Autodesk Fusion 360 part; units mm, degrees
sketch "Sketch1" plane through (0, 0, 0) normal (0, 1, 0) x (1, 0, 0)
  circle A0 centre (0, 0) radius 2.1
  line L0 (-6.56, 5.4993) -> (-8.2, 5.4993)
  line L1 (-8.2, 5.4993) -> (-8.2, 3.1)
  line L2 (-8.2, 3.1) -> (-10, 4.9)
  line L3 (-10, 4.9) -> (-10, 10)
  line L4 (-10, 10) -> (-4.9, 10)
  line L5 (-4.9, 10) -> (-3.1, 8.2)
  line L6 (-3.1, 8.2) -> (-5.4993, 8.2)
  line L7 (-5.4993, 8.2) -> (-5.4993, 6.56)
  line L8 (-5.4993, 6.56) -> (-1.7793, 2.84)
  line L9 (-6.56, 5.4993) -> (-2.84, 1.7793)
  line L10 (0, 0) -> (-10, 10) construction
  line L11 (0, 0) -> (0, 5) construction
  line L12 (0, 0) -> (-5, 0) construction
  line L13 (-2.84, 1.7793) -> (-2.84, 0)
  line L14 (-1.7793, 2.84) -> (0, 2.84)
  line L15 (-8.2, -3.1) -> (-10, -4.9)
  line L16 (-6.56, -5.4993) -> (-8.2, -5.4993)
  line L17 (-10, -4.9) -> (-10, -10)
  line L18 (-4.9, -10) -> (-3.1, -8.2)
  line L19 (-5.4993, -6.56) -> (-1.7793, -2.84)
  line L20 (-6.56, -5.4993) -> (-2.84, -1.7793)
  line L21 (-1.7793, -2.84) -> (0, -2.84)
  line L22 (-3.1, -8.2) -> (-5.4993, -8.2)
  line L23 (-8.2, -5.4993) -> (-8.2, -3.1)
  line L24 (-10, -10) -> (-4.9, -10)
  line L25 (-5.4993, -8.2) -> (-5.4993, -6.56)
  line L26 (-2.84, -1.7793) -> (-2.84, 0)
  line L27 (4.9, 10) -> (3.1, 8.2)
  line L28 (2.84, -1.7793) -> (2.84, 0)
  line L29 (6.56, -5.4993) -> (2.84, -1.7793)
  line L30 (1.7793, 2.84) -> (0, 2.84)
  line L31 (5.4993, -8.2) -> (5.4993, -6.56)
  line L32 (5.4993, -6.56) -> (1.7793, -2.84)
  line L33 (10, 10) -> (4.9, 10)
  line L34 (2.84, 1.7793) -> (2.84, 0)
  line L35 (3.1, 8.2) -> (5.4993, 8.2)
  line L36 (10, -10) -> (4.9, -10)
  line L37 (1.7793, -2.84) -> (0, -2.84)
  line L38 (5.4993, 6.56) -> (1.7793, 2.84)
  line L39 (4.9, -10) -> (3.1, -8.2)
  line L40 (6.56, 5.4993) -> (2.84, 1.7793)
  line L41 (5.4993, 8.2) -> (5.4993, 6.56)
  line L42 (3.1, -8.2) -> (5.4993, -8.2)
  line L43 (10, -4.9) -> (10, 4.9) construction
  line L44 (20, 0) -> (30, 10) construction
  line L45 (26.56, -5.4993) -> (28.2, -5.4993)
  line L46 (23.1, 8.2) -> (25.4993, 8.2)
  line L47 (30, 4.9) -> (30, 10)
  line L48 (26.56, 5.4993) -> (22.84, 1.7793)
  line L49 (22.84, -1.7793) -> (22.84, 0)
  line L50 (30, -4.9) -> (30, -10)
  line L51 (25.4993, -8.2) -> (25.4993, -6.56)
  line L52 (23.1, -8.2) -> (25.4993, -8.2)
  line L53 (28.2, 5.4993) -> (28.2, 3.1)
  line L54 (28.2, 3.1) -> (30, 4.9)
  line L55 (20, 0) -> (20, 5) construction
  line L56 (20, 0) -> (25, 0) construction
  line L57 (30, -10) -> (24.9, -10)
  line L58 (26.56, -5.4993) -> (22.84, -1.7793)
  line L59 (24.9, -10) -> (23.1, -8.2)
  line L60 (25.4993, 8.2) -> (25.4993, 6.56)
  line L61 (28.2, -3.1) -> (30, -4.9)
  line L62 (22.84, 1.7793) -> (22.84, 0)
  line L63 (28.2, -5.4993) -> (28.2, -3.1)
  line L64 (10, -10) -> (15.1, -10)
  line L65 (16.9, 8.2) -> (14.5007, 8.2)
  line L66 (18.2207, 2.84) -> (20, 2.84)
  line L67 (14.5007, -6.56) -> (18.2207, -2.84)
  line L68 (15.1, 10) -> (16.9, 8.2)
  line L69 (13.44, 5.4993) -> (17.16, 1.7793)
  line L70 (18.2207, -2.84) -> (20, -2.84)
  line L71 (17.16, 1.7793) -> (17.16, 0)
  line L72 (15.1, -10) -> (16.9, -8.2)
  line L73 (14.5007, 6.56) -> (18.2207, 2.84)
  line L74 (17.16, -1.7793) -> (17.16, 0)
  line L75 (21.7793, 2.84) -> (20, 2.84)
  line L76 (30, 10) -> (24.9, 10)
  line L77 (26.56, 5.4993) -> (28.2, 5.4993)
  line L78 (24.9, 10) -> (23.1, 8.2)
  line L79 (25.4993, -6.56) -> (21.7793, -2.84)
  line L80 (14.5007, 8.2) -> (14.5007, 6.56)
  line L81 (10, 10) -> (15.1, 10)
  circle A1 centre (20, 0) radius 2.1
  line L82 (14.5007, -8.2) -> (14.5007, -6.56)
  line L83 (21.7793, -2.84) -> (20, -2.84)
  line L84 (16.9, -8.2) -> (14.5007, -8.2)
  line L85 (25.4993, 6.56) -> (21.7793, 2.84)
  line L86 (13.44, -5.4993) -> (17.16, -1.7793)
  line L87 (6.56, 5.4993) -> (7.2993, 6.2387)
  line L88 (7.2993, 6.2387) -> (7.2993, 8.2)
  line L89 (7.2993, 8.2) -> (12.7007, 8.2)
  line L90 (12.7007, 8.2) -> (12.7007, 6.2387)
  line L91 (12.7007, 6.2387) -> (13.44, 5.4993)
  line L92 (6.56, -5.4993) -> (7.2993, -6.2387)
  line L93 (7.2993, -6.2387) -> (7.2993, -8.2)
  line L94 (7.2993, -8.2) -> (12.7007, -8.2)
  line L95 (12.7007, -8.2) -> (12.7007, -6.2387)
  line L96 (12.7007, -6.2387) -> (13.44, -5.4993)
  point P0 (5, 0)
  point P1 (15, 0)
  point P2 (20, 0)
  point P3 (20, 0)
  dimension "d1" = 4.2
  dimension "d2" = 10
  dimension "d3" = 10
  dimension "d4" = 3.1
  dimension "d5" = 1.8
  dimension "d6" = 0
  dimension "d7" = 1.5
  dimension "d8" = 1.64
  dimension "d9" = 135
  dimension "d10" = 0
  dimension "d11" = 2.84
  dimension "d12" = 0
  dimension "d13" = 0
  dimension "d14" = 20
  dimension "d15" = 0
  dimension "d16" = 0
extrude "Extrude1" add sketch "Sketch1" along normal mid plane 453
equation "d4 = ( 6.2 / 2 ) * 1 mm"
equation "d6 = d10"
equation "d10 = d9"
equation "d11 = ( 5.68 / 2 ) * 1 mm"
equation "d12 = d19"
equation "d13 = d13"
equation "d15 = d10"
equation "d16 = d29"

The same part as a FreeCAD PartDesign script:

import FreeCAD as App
import Part
import Sketcher
Q = App.Units.Quantity


def add_polygon(sketch, points):
    """Adds a closed chain of lines whose ends are joined by coincident constraints."""
    first, n = sketch.GeometryCount, len(points)
    for a, b in zip(points, points[1:] + points[:1]):
        sketch.addGeometry(Part.LineSegment(App.Vector(*a, 0), App.Vector(*b, 0)), False)
    for i in range(n):
        sketch.addConstraint(Sketcher.Constraint("Coincident", first + i, 2, first + (i + 1) % n, 1))

doc = App.newDocument("Part")
body = doc.addObject("PartDesign::Body", "Body")

# Sketch on XZ plane
sketch1 = doc.addObject("Sketcher::SketchObject", "Sketch")
body.addObject(sketch1)
sketch1.AttachmentSupport = (doc.XZ_Plane, [""])
sketch1.MapMode = "FlatFace"
add_polygon(sketch1, [(-8.2, -5.5), (-6.6, -5.5), (-2.8, -1.8), (-2.8, 1.8), (-6.6, 5.5), (-8.2, 5.5), (-8.2, 3.1), (-10, 4.9), (-10, 10), (-4.9, 10), (-3.1, 8.2), (-5.5, 8.2), (-5.5, 6.6), (-1.8, 2.8), (1.8, 2.8), (5.5, 6.6), (5.5, 8.2), (3.1, 8.2), (4.9, 10), (15.1, 10), (16.9, 8.2), (14.5, 8.2), (14.5, 6.6), (18.2, 2.8), (21.8, 2.8), (25.5, 6.6), (25.5, 8.2), (23.1, 8.2), (24.9, 10), (30, 10), (30, 4.9), (28.2, 3.1), (28.2, 5.5), (26.6, 5.5), (22.8, 1.8), (22.8, -1.8), (26.6, -5.5), (28.2, -5.5), (28.2, -3.1), (30, -4.9), (30, -10), (24.9, -10), (23.1, -8.2), (25.5, -8.2), (25.5, -6.6), (21.8, -2.8), (18.2, -2.8), (14.5, -6.6), (14.5, -8.2), (16.9, -8.2), (15.1, -10), (4.9, -10), (3.1, -8.2), (5.5, -8.2), (5.5, -6.6), (1.8, -2.8), (-1.8, -2.8), (-5.5, -6.6), (-5.5, -8.2), (-3.1, -8.2), (-4.9, -10), (-10, -10), (-10, -4.9), (-8.2, -3.1)])  # lines 0-63
sketch1.addGeometry(Part.Circle(App.Vector(0, 0, 0), App.Vector(0, 0, 1), 2.1), False)  # 64
add_polygon(sketch1, [(6.6, 5.5), (2.8, 1.8), (2.8, -1.8), (6.6, -5.5), (7.3, -6.2), (7.3, -8.2), (12.7, -8.2), (12.7, -6.2), (13.4, -5.5), (17.2, -1.8), (17.2, 1.8), (13.4, 5.5), (12.7, 6.2), (12.7, 8.2), (7.3, 8.2), (7.3, 6.2)])  # lines 65-80
sketch1.addGeometry(Part.Circle(App.Vector(20, 0, 0), App.Vector(0, 0, 1), 2.1), False)  # 81
sketch1.addConstraint(Sketcher.Constraint("Horizontal", 0))
sketch1.addConstraint(Sketcher.Constraint("Vertical", 2))
sketch1.addConstraint(Sketcher.Constraint("Horizontal", 4))
sketch1.addConstraint(Sketcher.Constraint("Vertical", 5))
sketch1.addConstraint(Sketcher.Constraint("Vertical", 7))
sketch1.addConstraint(Sketcher.Constraint("Horizontal", 8))
sketch1.addConstraint(Sketcher.Constraint("Horizontal", 10))
sketch1.addConstraint(Sketcher.Constraint("Vertical", 11))
sketch1.addConstraint(Sketcher.Constraint("Horizontal", 13))
sketch1.addConstraint(Sketcher.Constraint("Vertical", 15))
sketch1.addConstraint(Sketcher.Constraint("Horizontal", 16))
sketch1.addConstraint(Sketcher.Constraint("Horizontal", 18))
sketch1.addConstraint(Sketcher.Constraint("Horizontal", 20))
sketch1.addConstraint(Sketcher.Constraint("Vertical", 21))
sketch1.addConstraint(Sketcher.Constraint("Horizontal", 23))
sketch1.addConstraint(Sketcher.Constraint("Vertical", 25))
sketch1.addConstraint(Sketcher.Constraint("Horizontal", 26))
sketch1.addConstraint(Sketcher.Constraint("Horizontal", 28))
sketch1.addConstraint(Sketcher.Constraint("Vertical", 29))
sketch1.addConstraint(Sketcher.Constraint("Vertical", 31))
sketch1.addConstraint(Sketcher.Constraint("Horizontal", 32))
sketch1.addConstraint(Sketcher.Constraint("Vertical", 34))
sketch1.addConstraint(Sketcher.Constraint("Horizontal", 36))
sketch1.addConstraint(Sketcher.Constraint("Vertical", 37))
sketch1.addConstraint(Sketcher.Constraint("Vertical", 39))
sketch1.addConstraint(Sketcher.Constraint("Horizontal", 40))
sketch1.addConstraint(Sketcher.Constraint("Horizontal", 42))
sketch1.addConstraint(Sketcher.Constraint("Vertical", 43))
sketch1.addConstraint(Sketcher.Constraint("Horizontal", 45))
sketch1.addConstraint(Sketcher.Constraint("Vertical", 47))
sketch1.addConstraint(Sketcher.Constraint("Horizontal", 48))
sketch1.addConstraint(Sketcher.Constraint("Horizontal", 50))
sketch1.addConstraint(Sketcher.Constraint("Horizontal", 52))
sketch1.addConstraint(Sketcher.Constraint("Vertical", 53))
sketch1.addConstraint(Sketcher.Constraint("Horizontal", 55))
sketch1.addConstraint(Sketcher.Constraint("Vertical", 57))
sketch1.addConstraint(Sketcher.Constraint("Horizontal", 58))
sketch1.addConstraint(Sketcher.Constraint("Horizontal", 60))
sketch1.addConstraint(Sketcher.Constraint("Vertical", 61))
sketch1.addConstraint(Sketcher.Constraint("Vertical", 63))
sketch1.addConstraint(Sketcher.Constraint("Vertical", 66))
sketch1.addConstraint(Sketcher.Constraint("Vertical", 69))
sketch1.addConstraint(Sketcher.Constraint("Horizontal", 70))
sketch1.addConstraint(Sketcher.Constraint("Vertical", 71))
sketch1.addConstraint(Sketcher.Constraint("Vertical", 74))
sketch1.addConstraint(Sketcher.Constraint("Vertical", 77))
sketch1.addConstraint(Sketcher.Constraint("Horizontal", 78))
sketch1.addConstraint(Sketcher.Constraint("Vertical", 79))
sketch1.addConstraint(Sketcher.Constraint("Coincident", 64, 3, -1, 1))
sketch1.addConstraint(Sketcher.Constraint("Equal", 64, 81))
sketch1.addConstraint(Sketcher.Constraint("Symmetric", 8, 2, 50, 2, -1, 1))
sketch1.addConstraint(Sketcher.Constraint("Symmetric", 9, 2, 51, 2, -1, 1))
sketch1.addConstraint(Sketcher.Constraint("Symmetric", 11, 2, 53, 2, -1, 1))
sketch1.addConstraint(Sketcher.Constraint("Symmetric", 12, 2, 54, 2, -1, 1))
sketch1.addConstraint(Sketcher.Constraint("Symmetric", 14, 2, 56, 2, -1, 1))
sketch1.addConstraint(Sketcher.Constraint("Symmetric", 16, 2, 58, 2, -1, 1))
sketch1.addConstraint(Sketcher.Constraint("Symmetric", 17, 2, 59, 2, -1, 1))
sketch1.addConstraint(Sketcher.Constraint("Symmetric", 1, 2, 65, 2, -1, 1))
sketch1.addConstraint(Sketcher.Constraint("Symmetric", 3, 2, 67, 2, -1, 1))
sketch1.addConstraint(Sketcher.Constraint("Symmetric", 0, 2, 80, 2, -1, 1))
sketch1.addConstraint(Sketcher.Constraint("Symmetric", 11, 2, 14, 2, -2))
sketch1.addConstraint(Sketcher.Constraint("Symmetric", 9, 2, 16, 2, -2))
sketch1.addConstraint(Sketcher.Constraint("Symmetric", 8, 2, 17, 2, -2))
sketch1.addConstraint(Sketcher.Constraint("Symmetric", 0, 2, 67, 2, -2))
sketch1.addConstraint(Sketcher.Constraint("Symmetric", 32, 2, 35, 2, -1))
sketch1.addConstraint(Sketcher.Constraint("Symmetric", 30, 2, 37, 2, -1))
sketch1.addConstraint(Sketcher.Constraint("Symmetric", 29, 2, 38, 2, -1))
sketch1.addConstraint(Sketcher.Constraint("Symmetric", 27, 2, 40, 2, -1))
sketch1.addConstraint(Sketcher.Constraint("Symmetric", 26, 2, 41, 2, -1))
sketch1.addConstraint(Sketcher.Constraint("Symmetric", 24, 2, 43, 2, -1))
sketch1.addConstraint(Sketcher.Constraint("Symmetric", 23, 2, 44, 2, -1))
sketch1.addConstraint(Sketcher.Constraint("Symmetric", 21, 2, 46, 2, -1))
sketch1.addConstraint(Sketcher.Constraint("Symmetric", 19, 2, 48, 2, -1))
sketch1.addConstraint(Sketcher.Constraint("Symmetric", 6, 2, 61, 2, -1))
sketch1.addConstraint(Sketcher.Constraint("Symmetric", 5, 2, 62, 2, -1))
sketch1.addConstraint(Sketcher.Constraint("Symmetric", 72, 2, 75, 2, -1))
sketch1.addConstraint(Sketcher.Constraint("Symmetric", 71, 2, 76, 2, -1))
sketch1.addConstraint(Sketcher.Constraint("Symmetric", 69, 2, 78, 2, -1))
sketch1.addConstraint(Sketcher.Constraint("PointOnObject", 81, 3, -1))
sketch1.addConstraint(Sketcher.Constraint("Perpendicular", 1, 3))
sketch1.addConstraint(Sketcher.Constraint("Parallel", 3, 6))
sketch1.addConstraint(Sketcher.Constraint("Parallel", 6, 9))
sketch1.addConstraint(Sketcher.Constraint("Parallel", 9, 12))
sketch1.addConstraint(Sketcher.Constraint("Perpendicular", 12, 14))
sketch1.addConstraint(Sketcher.Constraint("Parallel", 14, 17))
sketch1.addConstraint(Sketcher.Constraint("Perpendicular", 17, 19))
sketch1.addConstraint(Sketcher.Constraint("Parallel", 19, 22))
sketch1.addConstraint(Sketcher.Constraint("Perpendicular", 22, 24))
sketch1.addConstraint(Sketcher.Constraint("Parallel", 24, 27))
sketch1.addConstraint(Sketcher.Constraint("Parallel", 27, 30))
sketch1.addConstraint(Sketcher.Constraint("Parallel", 30, 33))
sketch1.addConstraint(Sketcher.Constraint("Perpendicular", 33, 35))
sketch1.addConstraint(Sketcher.Constraint("Perpendicular", 44, 46))
sketch1.addConstraint(Sketcher.Constraint("Parallel", 46, 49))
sketch1.addConstraint(Sketcher.Constraint("Perpendicular", 54, 56))
sketch1.addConstraint(Sketcher.Constraint("Perpendicular", 65, 67))
sketch1.addConstraint(Sketcher.Constraint("Parallel", 67, 68))
sketch1.addConstraint(Sketcher.Constraint("Perpendicular", 68, 72))
sketch1.addConstraint(Sketcher.Constraint("Parallel", 72, 73))
sketch1.addConstraint(Sketcher.Constraint("Perpendicular", 73, 75))
sketch1.addConstraint(Sketcher.Constraint("Perpendicular", 76, 80))
sketch1.addConstraint(Sketcher.Constraint("Horizontal", 16, 2, 19, 2))
sketch1.addConstraint(Sketcher.Constraint("Horizontal", 14, 2, 21, 2))
sketch1.addConstraint(Sketcher.Constraint("Horizontal", 13, 2, 22, 2))
sketch1.addConstraint(Sketcher.Constraint("Horizontal", 21, 2, 24, 2))
sketch1.addConstraint(Sketcher.Constraint("Horizontal", 20, 2, 25, 2))
sketch1.addConstraint(Sketcher.Constraint("Horizontal", 18, 2, 27, 2))
sketch1.addConstraint(Sketcher.Constraint("Horizontal", 6, 2, 29, 2))
sketch1.addConstraint(Sketcher.Constraint("Horizontal", 5, 2, 30, 2))
sketch1.addConstraint(Sketcher.Constraint("Horizontal", 4, 2, 31, 2))
sketch1.addConstraint(Sketcher.Constraint("Horizontal", 2, 2, 33, 2))
sketch1.addConstraint(Sketcher.Constraint("Horizontal", 58, 2, 69, 2))
sketch1.addConstraint(Sketcher.Constraint("Horizontal", 68, 2, 71, 2))
sketch1.addConstraint(Sketcher.Constraint("Horizontal", 67, 2, 72, 2))
sketch1.addConstraint(Sketcher.Constraint("Horizontal", 66, 2, 73, 2))
sketch1.addConstraint(Sketcher.Constraint("Equal", 16, 20))
sketch1.addConstraint(Sketcher.Constraint("Equal", 13, 23))
sketch1.addConstraint(Sketcher.Constraint("Equal", 20, 26))
sketch1.addConstraint(Sketcher.Constraint("Equal", 8, 28))
sketch1.addConstraint(Sketcher.Constraint("Equal", 4, 32))
sketch1.addConstraint(Sketcher.Constraint("Equal", 55, 2))
sketch1.addConstraint(Sketcher.Constraint("Equal", 58, 5))
sketch1.addConstraint(Sketcher.Constraint("Equal", 60, 7))
sketch1.addConstraint(Sketcher.Constraint("Equal", 36, 11))
sketch1.addConstraint(Sketcher.Constraint("Equal", 6, 9))
sketch1.addConstraint(Sketcher.Constraint("Equal", 3, 12))
sketch1.addConstraint(Sketcher.Constraint("Diameter", 64, Q("4.2 mm")))
sketch1.addConstraint(Sketcher.Constraint("DistanceX", -1, 1, 81, 3, Q("20 mm")))
sketch1.addConstraint(Sketcher.Constraint("DistanceX", 6, 2, -1, 1, Q("10 mm")))
sketch1.addConstraint(Sketcher.Constraint("DistanceX", 0, 1, 0, 2, Q("1.64 mm")))
sketch1.addConstraint(Sketcher.Constraint("DistanceY", -1, 1, 5, 2, Q("3.1 mm")))
sketch1.addConstraint(Sketcher.Constraint("DistanceX", 1, 2, -1, 1, Q("2.84 mm")))
sketch1.addConstraint(Sketcher.Constraint("DistanceX", 8, 1, 8, 2, Q("5.1 mm")))
sketch1.addConstraint(Sketcher.Constraint("DistanceX", 18, 1, 18, 2, Q("10.2 mm")))
sketch1.addConstraint(Sketcher.Constraint("DistanceX", -1, 1, 72, 2, Q("13.44 mm")))
sketch1.addConstraint(Sketcher.Constraint("DistanceX", 10, 2, 10, 1, Q("2.3993 mm")))
sketch1.addConstraint(Sketcher.Constraint("DistanceX", 70, 1, 70, 2, Q("5.4014 mm")))
pad1 = doc.addObject("PartDesign::Pad", "Pad")
body.addObject(pad1)
pad1.Profile = sketch1
pad1.Length = 453
pad1.Midplane = True

doc.recompute()
